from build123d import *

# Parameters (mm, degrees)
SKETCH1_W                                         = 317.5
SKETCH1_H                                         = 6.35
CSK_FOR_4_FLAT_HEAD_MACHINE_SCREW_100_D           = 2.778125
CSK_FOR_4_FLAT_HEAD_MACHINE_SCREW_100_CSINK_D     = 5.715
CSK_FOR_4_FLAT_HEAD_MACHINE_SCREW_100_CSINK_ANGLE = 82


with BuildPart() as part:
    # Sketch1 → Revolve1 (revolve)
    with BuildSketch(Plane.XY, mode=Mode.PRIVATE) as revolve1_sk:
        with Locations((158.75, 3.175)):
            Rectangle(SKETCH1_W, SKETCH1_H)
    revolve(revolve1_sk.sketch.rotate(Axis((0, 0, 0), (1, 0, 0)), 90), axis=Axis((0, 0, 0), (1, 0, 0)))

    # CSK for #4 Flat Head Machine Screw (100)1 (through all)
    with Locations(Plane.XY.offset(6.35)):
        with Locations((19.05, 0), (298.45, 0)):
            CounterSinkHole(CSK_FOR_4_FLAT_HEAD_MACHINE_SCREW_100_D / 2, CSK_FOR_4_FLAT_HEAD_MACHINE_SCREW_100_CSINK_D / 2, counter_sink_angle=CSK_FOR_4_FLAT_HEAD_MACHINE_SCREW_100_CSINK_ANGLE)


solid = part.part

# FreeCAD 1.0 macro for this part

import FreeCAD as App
import Part
import Sketcher
from FreeCAD import Vector
Q = App.Units.Quantity

doc = App.newDocument("Part")
body = doc.addObject("PartDesign::Body", "Body")

# Sketch on XY plane
sketch1 = body.newObject("Sketcher::SketchObject", "Sketch")
sketch1.AttachmentSupport = (doc.getObject("XY_Plane"), [""])
sketch1.MapMode = "FlatFace"
sketch1.addGeometry([
    Part.LineSegment(Vector(0, 6.35, 0), Vector(0, 0, 0)),
    Part.LineSegment(Vector(0, 0, 0), Vector(317.5, 0, 0)),
    Part.LineSegment(Vector(317.5, 0, 0), Vector(317.5, 6.35, 0)),
    Part.LineSegment(Vector(317.5, 6.35, 0), Vector(0, 6.35, 0)),
], False)
sketch1.addConstraint([
    Sketcher.Constraint("Coincident", 0, 2, 1, 1),
    Sketcher.Constraint("Coincident", 1, 2, 2, 1),
    Sketcher.Constraint("Coincident", 2, 2, 3, 1),
    Sketcher.Constraint("Coincident", 3, 2, 0, 1),
    Sketcher.Constraint("Vertical", 0),
    Sketcher.Constraint("Horizontal", 1),
    Sketcher.Constraint("Vertical", 2),
    Sketcher.Constraint("Horizontal", 3),
    Sketcher.Constraint("Coincident", 0, 2, -1, 1),
    Sketcher.Constraint("DistanceX", 1, 1, 1, 2, Q("12.5 in")),
    Sketcher.Constraint("DistanceY", 0, 2, 0, 1, Q("0.25 in")),
])
revolution = body.newObject("PartDesign::Revolution", "Revolution")
revolution.Profile = sketch1
revolution.ReferenceAxis = (sketch1, ["H_Axis"])
revolution.Angle = 360

# Sketch on XY plane
sketch2 = body.newObject("Sketcher::SketchObject", "Sketch001")
sketch2.AttachmentSupport = (doc.getObject("XY_Plane"), [""])
sketch2.MapMode = "FlatFace"
sketch2.AttachmentOffset = App.Placement(Vector(0, 0, 0.25 * 25.4), App.Rotation())
sketch2.addGeometry([
    Part.Circle(Vector(19.05, 0, 0), Vector(0, 0, 1), 1.389063),
    Part.Circle(Vector(298.45, 0, 0), Vector(0, 0, 1), 1.389063),
], False)
sketch2.addConstraint([
    Sketcher.Constraint("Equal", 0, 1),
    Sketcher.Constraint("PointOnObject", 0, 3, -1),
    Sketcher.Constraint("PointOnObject", 1, 3, -1),
    Sketcher.Constraint("Diameter", 0, Q("0.109375 in")),
    Sketcher.Constraint("DistanceX", 0, 3, 1, 3, Q("11 in")),
    Sketcher.Constraint("DistanceX", -1, 1, 0, 3, Q("0.75 in")),
])
doc.recompute()
hole = body.newObject("PartDesign::Hole", "Hole")
hole.Profile = sketch2
hole.ThreadType = "None"
hole.Diameter = Q("0.109375 in")
hole.DepthType = "ThroughAll"
hole.HoleCutType = "Countersink"
hole.HoleCutDiameter = Q("0.225 in")
hole.HoleCutCountersinkAngle = 82

doc.recompute()
